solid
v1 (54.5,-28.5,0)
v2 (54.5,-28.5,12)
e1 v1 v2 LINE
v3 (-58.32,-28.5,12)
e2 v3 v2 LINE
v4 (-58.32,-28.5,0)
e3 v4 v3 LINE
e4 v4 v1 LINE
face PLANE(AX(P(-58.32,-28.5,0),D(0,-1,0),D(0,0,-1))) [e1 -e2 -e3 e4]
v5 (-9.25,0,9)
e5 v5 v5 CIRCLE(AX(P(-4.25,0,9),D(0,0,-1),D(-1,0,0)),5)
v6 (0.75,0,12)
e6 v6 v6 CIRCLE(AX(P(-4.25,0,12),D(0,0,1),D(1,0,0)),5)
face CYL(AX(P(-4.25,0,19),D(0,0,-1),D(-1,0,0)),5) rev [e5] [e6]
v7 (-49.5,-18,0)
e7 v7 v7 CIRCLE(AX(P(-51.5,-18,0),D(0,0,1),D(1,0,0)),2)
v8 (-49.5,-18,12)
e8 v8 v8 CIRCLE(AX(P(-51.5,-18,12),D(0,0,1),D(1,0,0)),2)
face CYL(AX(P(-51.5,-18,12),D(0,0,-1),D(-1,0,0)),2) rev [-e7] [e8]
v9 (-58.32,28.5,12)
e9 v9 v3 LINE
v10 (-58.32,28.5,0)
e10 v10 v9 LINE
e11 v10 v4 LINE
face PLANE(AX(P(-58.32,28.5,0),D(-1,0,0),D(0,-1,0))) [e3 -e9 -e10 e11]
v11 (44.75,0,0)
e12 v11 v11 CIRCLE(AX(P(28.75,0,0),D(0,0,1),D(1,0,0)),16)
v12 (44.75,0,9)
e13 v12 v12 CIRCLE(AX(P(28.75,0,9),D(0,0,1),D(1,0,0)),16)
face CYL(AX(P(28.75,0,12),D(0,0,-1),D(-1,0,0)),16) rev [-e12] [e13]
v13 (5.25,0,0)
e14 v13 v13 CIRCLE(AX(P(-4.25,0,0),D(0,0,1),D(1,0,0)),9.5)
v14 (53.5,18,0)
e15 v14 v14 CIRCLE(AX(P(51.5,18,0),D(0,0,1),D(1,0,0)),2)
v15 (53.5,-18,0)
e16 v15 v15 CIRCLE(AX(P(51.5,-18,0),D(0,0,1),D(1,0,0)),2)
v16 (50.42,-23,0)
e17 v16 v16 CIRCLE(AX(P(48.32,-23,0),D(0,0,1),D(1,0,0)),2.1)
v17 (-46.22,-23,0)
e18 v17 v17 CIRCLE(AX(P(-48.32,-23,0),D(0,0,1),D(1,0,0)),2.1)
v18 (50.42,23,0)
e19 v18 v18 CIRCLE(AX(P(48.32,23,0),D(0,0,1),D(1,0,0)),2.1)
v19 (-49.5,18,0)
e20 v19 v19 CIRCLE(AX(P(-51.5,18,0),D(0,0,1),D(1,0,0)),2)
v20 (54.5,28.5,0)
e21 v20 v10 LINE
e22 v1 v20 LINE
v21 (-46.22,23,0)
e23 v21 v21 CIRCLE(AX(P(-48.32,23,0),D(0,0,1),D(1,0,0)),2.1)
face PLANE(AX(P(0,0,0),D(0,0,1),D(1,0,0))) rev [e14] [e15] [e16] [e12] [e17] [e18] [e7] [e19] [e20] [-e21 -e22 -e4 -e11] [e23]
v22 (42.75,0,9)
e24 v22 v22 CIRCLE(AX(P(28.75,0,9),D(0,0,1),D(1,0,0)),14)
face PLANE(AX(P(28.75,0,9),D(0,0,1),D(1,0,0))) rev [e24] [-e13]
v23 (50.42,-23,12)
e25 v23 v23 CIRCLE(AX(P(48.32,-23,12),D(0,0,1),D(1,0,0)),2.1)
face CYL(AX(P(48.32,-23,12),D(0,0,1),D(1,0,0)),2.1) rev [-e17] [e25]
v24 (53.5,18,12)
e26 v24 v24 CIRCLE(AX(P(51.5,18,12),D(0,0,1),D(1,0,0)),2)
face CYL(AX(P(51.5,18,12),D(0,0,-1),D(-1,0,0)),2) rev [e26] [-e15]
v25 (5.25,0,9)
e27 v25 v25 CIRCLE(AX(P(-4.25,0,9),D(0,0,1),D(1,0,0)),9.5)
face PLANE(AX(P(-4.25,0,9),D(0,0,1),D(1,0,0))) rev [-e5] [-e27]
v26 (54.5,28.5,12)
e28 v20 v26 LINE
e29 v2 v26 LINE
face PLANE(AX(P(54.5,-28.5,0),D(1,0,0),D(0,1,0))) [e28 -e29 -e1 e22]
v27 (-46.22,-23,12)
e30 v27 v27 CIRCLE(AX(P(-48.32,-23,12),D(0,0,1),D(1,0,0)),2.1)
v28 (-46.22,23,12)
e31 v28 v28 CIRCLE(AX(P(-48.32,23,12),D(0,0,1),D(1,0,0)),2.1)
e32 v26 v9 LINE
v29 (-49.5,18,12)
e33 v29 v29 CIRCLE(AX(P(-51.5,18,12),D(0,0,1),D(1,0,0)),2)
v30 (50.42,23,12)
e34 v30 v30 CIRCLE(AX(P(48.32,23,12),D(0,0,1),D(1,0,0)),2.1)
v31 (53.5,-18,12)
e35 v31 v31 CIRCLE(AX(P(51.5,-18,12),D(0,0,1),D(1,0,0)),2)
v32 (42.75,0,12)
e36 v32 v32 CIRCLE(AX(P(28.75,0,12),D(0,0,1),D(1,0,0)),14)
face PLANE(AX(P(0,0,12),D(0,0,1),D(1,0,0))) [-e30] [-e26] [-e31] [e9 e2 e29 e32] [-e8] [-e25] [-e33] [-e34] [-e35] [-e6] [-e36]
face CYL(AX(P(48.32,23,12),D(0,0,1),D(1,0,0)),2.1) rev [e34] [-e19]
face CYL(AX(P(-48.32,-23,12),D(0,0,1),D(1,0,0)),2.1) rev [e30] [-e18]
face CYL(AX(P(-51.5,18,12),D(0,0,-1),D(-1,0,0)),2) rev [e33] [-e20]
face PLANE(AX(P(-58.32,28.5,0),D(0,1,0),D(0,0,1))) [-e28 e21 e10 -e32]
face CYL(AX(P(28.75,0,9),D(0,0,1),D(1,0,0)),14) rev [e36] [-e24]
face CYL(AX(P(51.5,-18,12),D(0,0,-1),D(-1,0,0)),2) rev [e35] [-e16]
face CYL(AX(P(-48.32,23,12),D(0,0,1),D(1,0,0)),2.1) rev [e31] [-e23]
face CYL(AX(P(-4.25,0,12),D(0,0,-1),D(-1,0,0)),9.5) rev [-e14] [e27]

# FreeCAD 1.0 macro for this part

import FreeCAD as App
import Part
import Sketcher


def add_polygon(sketch, points):
    """Adds a closed chain of lines whose ends are joined by coincident constraints."""
    first, n = sketch.GeometryCount, len(points)
    for a, b in zip(points, points[1:] + points[:1]):
        sketch.addGeometry(Part.LineSegment(App.Vector(*a, 0), App.Vector(*b, 0)), False)
    for i in range(n):
        sketch.addConstraint(Sketcher.Constraint("Coincident", first + i, 2, first + (i + 1) % n, 1))

doc = App.newDocument("Part")
params = doc.addObject("Spreadsheet::Sheet", "Params")
for row, (alias, value) in enumerate([
    ("sketch1_diameter", "4 mm"),
    ("sketch1_diameter2", "19 mm"),
    ("sketch1_diameter3", "32 mm"),
    ("sketch1_width", "118 mm"),
    ("sketch1_height", "62 mm"),
    ("pad1_length", "12 mm"),
    ("sketch2_diameter", "4.2 mm"),
    ("hole_diameter", "4.2 mm"),
    ("sketch3_diameter", "19 mm"),
    ("pad2_length", "3 mm"),
    ("sketch4_width", "118 mm"),
    ("sketch4_height", "62 mm"),
    ("sketch4_height2", "57 mm"),
    ("sketch4_width2", "112.82 mm"),
    ("sketch5_diameter", "32 mm"),
    ("sketch5_diameter2", "28 mm"),
    ("pad3_length", "3 mm"),
    ("sketch6_diameter", "10 mm"),
    ("pocket2_length", "10 mm"),
], start=1):
    params.set(f"A{row}", alias)
    params.set(f"B{row}", "=" + value)
    params.setAlias(f"B{row}", alias)

body = doc.addObject("PartDesign::Body", "Body")

# Sketch on XY plane
sketch1 = body.newObject("Sketcher::SketchObject", "Sketch")
sketch1.AttachmentSupport = (doc.getObject("XY_Plane"), [""])
sketch1.MapMode = "FlatFace"
add_polygon(sketch1, [(-59, 31), (-59, -31), (59, -31), (59, 31)])  # lines 0-3
sketch1.addGeometry(Part.Circle(App.Vector(-51.5, -18, 0), App.Vector(0, 0, 1), 2), False)  # 4
sketch1.addGeometry(Part.Circle(App.Vector(51.5, -18, 0), App.Vector(0, 0, 1), 2), False)  # 5
sketch1.addGeometry(Part.Circle(App.Vector(-4.25, 0, 0), App.Vector(0, 0, 1), 9.5), False)  # 6
sketch1.addGeometry(Part.Circle(App.Vector(-51.5, 18, 0), App.Vector(0, 0, 1), 2), False)  # 7
sketch1.addGeometry(Part.Circle(App.Vector(28.75, 0, 0), App.Vector(0, 0, 1), 16), False)  # 8
sketch1.addGeometry(Part.Circle(App.Vector(51.5, 18, 0), App.Vector(0, 0, 1), 2), False)  # 9
sketch1.addConstraint(Sketcher.Constraint("Vertical", 0))
sketch1.addConstraint(Sketcher.Constraint("Horizontal", 1))
sketch1.addConstraint(Sketcher.Constraint("Vertical", 2))
sketch1.addConstraint(Sketcher.Constraint("Horizontal", 3))
sketch1.addConstraint(Sketcher.Constraint("Equal", 4, 5))
sketch1.addConstraint(Sketcher.Constraint("Equal", 5, 7))
sketch1.addConstraint(Sketcher.Constraint("Equal", 7, 9))
sketch1.addConstraint(Sketcher.Constraint("Symmetric", 5, 3, 7, 3, -1, 1))
sketch1.addConstraint(Sketcher.Constraint("Symmetric", 4, 3, 9, 3, -1, 1))
sketch1.addConstraint(Sketcher.Constraint("Symmetric", 0, 2, 2, 2, -1, 1))
sketch1.addConstraint(Sketcher.Constraint("Symmetric", 4, 3, 5, 3, -2))
sketch1.addConstraint(Sketcher.Constraint("PointOnObject", 6, 3, -1))
sketch1.addConstraint(Sketcher.Constraint("PointOnObject", 8, 3, -1))
sketch1.addConstraint(Sketcher.Constraint("Diameter", 4, 4.0))
sketch1.addConstraint(Sketcher.Constraint("Diameter", 6, 19.0))
sketch1.addConstraint(Sketcher.Constraint("Diameter", 8, 32.0))
sketch1.addConstraint(Sketcher.Constraint("DistanceX", 1, 1, 1, 2, 118.0))
sketch1.addConstraint(Sketcher.Constraint("DistanceY", 0, 2, 0, 1, 62.0))
sketch1.addConstraint(Sketcher.Constraint("DistanceY", 4, 3, -1, 1, 18.0))
sketch1.addConstraint(Sketcher.Constraint("DistanceX", 4, 3, 5, 3, 103.0))
sketch1.addConstraint(Sketcher.Constraint("DistanceX", 6, 3, 8, 3, 33.0))
sketch1.addConstraint(Sketcher.Constraint("DistanceX", 6, 3, -1, 1, 4.25))
sketch1.setExpression("Constraints[17]", "Params.sketch1_diameter")
sketch1.setExpression("Constraints[18]", "Params.sketch1_diameter2")
sketch1.setExpression("Constraints[19]", "Params.sketch1_diameter3")
sketch1.setExpression("Constraints[20]", "Params.sketch1_width")
sketch1.setExpression("Constraints[21]", "Params.sketch1_height")
pad1 = body.newObject("PartDesign::Pad", "Pad")
pad1.Profile = sketch1
pad1.setExpression("Length", "Params.pad1_length")

# Sketch on XY plane
sketch2 = body.newObject("Sketcher::SketchObject", "Sketch001")
sketch2.AttachmentSupport = (doc.getObject("XY_Plane"), [""])
sketch2.MapMode = "FlatFace"
sketch2.AttachmentOffset = App.Placement(App.Vector(0, 0, 12), App.Rotation())
sketch2.addGeometry(Part.Circle(App.Vector(-48.32, 23, 0), App.Vector(0, 0, 1), 2.1), False)
sketch2.addGeometry(Part.Circle(App.Vector(-48.32, -23, 0), App.Vector(0, 0, 1), 2.1), False)
sketch2.addGeometry(Part.Circle(App.Vector(48.32, -23, 0), App.Vector(0, 0, 1), 2.1), False)
sketch2.addGeometry(Part.Circle(App.Vector(48.32, 23, 0), App.Vector(0, 0, 1), 2.1), False)
sketch2.addConstraint(Sketcher.Constraint("Equal", 0, 1))
sketch2.addConstraint(Sketcher.Constraint("Equal", 1, 2))
sketch2.addConstraint(Sketcher.Constraint("Equal", 2, 3))
sketch2.addConstraint(Sketcher.Constraint("Symmetric", 0, 3, 2, 3, -1, 1))
sketch2.addConstraint(Sketcher.Constraint("Symmetric", 1, 3, 3, 3, -1, 1))
sketch2.addConstraint(Sketcher.Constraint("Symmetric", 1, 3, 2, 3, -2))
sketch2.addConstraint(Sketcher.Constraint("Diameter", 0, 4.2))
sketch2.addConstraint(Sketcher.Constraint("DistanceY", -1, 1, 0, 3, 23.0))
sketch2.addConstraint(Sketcher.Constraint("DistanceX", 0, 3, -1, 1, 48.32))
sketch2.setExpression("Constraints[6]", "Params.sketch2_diameter")
doc.recompute()
hole = body.newObject("PartDesign::Hole", "Hole")
hole.Profile = sketch2
hole.ThreadType = "None"
hole.setExpression("Diameter", "Params.hole_diameter")
hole.DepthType = "ThroughAll"

# Sketch on XY plane
sketch3 = body.newObject("Sketcher::SketchObject", "Sketch002")
sketch3.AttachmentSupport = (doc.getObject("XY_Plane"), [""])
sketch3.MapMode = "FlatFace"
sketch3.AttachmentOffset = App.Placement(App.Vector(0, 0, 9), App.Rotation())
sketch3.addGeometry(Part.Circle(App.Vector(-4.25, 0, 0), App.Vector(0, 0, 1), 9.5), False)
sketch3.addConstraint(Sketcher.Constraint("PointOnObject", 0, 3, -1))
sketch3.addConstraint(Sketcher.Constraint("Diameter", 0, 19.0))
sketch3.addConstraint(Sketcher.Constraint("DistanceX", 0, 3, -1, 1, 4.25))
sketch3.setExpression("Constraints[1]", "Params.sketch3_diameter")
pad2 = body.newObject("PartDesign::Pad", "Pad001")
pad2.Profile = sketch3
pad2.setExpression("Length", "Params.pad2_length")

# Sketch on XY plane
sketch4 = body.newObject("Sketcher::SketchObject", "Sketch003")
sketch4.AttachmentSupport = (doc.getObject("XY_Plane"), [""])
sketch4.MapMode = "FlatFace"
sketch4.AttachmentOffset = App.Placement(App.Vector(0, 0, 12), App.Rotation())
add_polygon(sketch4, [(-59, 31), (-59, -31), (59, -31), (59, 31)])  # lines 0-3
add_polygon(sketch4, [(54.5, -28.5), (-58.32, -28.5), (-58.32, 28.5), (54.5, 28.5)])  # lines 4-7
sketch4.addConstraint(Sketcher.Constraint("Vertical", 0))
sketch4.addConstraint(Sketcher.Constraint("Horizontal", 1))
sketch4.addConstraint(Sketcher.Constraint("Vertical", 2))
sketch4.addConstraint(Sketcher.Constraint("Horizontal", 3))
sketch4.addConstraint(Sketcher.Constraint("Horizontal", 4))
sketch4.addConstraint(Sketcher.Constraint("Vertical", 5))
sketch4.addConstraint(Sketcher.Constraint("Horizontal", 6))
sketch4.addConstraint(Sketcher.Constraint("Vertical", 7))
sketch4.addConstraint(Sketcher.Constraint("Symmetric", 0, 2, 2, 2, -1, 1))
sketch4.addConstraint(Sketcher.Constraint("DistanceX", 1, 1, 1, 2, 118.0))
sketch4.addConstraint(Sketcher.Constraint("DistanceY", 0, 2, 0, 1, 62.0))
sketch4.addConstraint(Sketcher.Constraint("DistanceY", 5, 1, 5, 2, 57.0))
sketch4.addConstraint(Sketcher.Constraint("DistanceX", 4, 2, 4, 1, 112.82))
sketch4.addConstraint(Sketcher.Constraint("DistanceY", 4, 2, -1, 1, 28.5))
sketch4.addConstraint(Sketcher.Constraint("DistanceX", -1, 1, 6, 2, 54.5))
sketch4.setExpression("Constraints[17]", "Params.sketch4_width")
sketch4.setExpression("Constraints[18]", "Params.sketch4_height")
sketch4.setExpression("Constraints[19]", "Params.sketch4_height2")
sketch4.setExpression("Constraints[20]", "Params.sketch4_width2")
pocket1 = body.newObject("PartDesign::Pocket", "Pocket")
pocket1.Profile = sketch4
pocket1.Type = "ThroughAll"

# Sketch on XY plane
sketch5 = body.newObject("Sketcher::SketchObject", "Sketch004")
sketch5.AttachmentSupport = (doc.getObject("XY_Plane"), [""])
sketch5.MapMode = "FlatFace"
sketch5.AttachmentOffset = App.Placement(App.Vector(0, 0, 9), App.Rotation())
sketch5.addGeometry(Part.Circle(App.Vector(28.75, 0, 0), App.Vector(0, 0, 1), 16), False)
sketch5.addGeometry(Part.Circle(App.Vector(28.75, 0, 0), App.Vector(0, 0, 1), 14), False)
sketch5.addConstraint(Sketcher.Constraint("Coincident", 1, 3, 0, 3))
sketch5.addConstraint(Sketcher.Constraint("PointOnObject", 0, 3, -1))
sketch5.addConstraint(Sketcher.Constraint("Diameter", 0, 32.0))
sketch5.addConstraint(Sketcher.Constraint("Diameter", 1, 28.0))
sketch5.addConstraint(Sketcher.Constraint("DistanceX", -1, 1, 0, 3, 28.75))
sketch5.setExpression("Constraints[2]", "Params.sketch5_diameter")
sketch5.setExpression("Constraints[3]", "Params.sketch5_diameter2")
pad3 = body.newObject("PartDesign::Pad", "Pad002")
pad3.Profile = sketch5
pad3.setExpression("Length", "Params.pad3_length")

# Sketch on XY plane
sketch6 = body.newObject("Sketcher::SketchObject", "Sketch005")
sketch6.AttachmentSupport = (doc.getObject("XY_Plane"), [""])
sketch6.MapMode = "FlatFace"
sketch6.AttachmentOffset = App.Placement(App.Vector(0, 0, 9), App.Rotation())
sketch6.addGeometry(Part.Circle(App.Vector(-4.25, 0, 0), App.Vector(0, 0, 1), 5), False)
sketch6.addConstraint(Sketcher.Constraint("PointOnObject", 0, 3, -1))
sketch6.addConstraint(Sketcher.Constraint("Diameter", 0, 10.0))
sketch6.addConstraint(Sketcher.Constraint("DistanceX", 0, 3, -1, 1, 4.25))
sketch6.setExpression("Constraints[1]", "Params.sketch6_diameter")
pocket2 = body.newObject("PartDesign::Pocket", "Pocket001")
pocket2.Profile = sketch6
pocket2.setExpression("Length", "Params.pocket2_length")
pocket2.Reversed = True

doc.recompute()
